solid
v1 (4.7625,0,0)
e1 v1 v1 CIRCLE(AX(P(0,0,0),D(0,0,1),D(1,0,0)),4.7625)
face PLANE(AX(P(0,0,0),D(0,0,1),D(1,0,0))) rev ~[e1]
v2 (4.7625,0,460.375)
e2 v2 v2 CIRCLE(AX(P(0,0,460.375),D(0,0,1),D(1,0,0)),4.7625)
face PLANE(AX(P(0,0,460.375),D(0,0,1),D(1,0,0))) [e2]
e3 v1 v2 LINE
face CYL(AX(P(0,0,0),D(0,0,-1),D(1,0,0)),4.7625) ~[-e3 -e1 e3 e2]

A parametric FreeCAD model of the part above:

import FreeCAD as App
import Part
import Sketcher
from FreeCAD import Vector
Q = App.Units.Quantity

doc = App.newDocument("Part")
body = doc.addObject("PartDesign::Body", "Body")

# Sketch on XY plane
sketch1 = body.newObject("Sketcher::SketchObject", "Sketch")
sketch1.AttachmentSupport = (doc.getObject("XY_Plane"), [""])
sketch1.MapMode = "FlatFace"
sketch1.addGeometry(Part.Circle(Vector(0, 0, 0), Vector(0, 0, 1), 4.8), False)
sketch1.addConstraint(Sketcher.Constraint("Coincident", 0, 3, -1, 1))
sketch1.addConstraint(Sketcher.Constraint("Diameter", 0, Q("0.375 in")))
pad1 = body.newObject("PartDesign::Pad", "Pad")
pad1.Profile = sketch1
pad1.Length = Q("18.125 in")

doc.recompute()
